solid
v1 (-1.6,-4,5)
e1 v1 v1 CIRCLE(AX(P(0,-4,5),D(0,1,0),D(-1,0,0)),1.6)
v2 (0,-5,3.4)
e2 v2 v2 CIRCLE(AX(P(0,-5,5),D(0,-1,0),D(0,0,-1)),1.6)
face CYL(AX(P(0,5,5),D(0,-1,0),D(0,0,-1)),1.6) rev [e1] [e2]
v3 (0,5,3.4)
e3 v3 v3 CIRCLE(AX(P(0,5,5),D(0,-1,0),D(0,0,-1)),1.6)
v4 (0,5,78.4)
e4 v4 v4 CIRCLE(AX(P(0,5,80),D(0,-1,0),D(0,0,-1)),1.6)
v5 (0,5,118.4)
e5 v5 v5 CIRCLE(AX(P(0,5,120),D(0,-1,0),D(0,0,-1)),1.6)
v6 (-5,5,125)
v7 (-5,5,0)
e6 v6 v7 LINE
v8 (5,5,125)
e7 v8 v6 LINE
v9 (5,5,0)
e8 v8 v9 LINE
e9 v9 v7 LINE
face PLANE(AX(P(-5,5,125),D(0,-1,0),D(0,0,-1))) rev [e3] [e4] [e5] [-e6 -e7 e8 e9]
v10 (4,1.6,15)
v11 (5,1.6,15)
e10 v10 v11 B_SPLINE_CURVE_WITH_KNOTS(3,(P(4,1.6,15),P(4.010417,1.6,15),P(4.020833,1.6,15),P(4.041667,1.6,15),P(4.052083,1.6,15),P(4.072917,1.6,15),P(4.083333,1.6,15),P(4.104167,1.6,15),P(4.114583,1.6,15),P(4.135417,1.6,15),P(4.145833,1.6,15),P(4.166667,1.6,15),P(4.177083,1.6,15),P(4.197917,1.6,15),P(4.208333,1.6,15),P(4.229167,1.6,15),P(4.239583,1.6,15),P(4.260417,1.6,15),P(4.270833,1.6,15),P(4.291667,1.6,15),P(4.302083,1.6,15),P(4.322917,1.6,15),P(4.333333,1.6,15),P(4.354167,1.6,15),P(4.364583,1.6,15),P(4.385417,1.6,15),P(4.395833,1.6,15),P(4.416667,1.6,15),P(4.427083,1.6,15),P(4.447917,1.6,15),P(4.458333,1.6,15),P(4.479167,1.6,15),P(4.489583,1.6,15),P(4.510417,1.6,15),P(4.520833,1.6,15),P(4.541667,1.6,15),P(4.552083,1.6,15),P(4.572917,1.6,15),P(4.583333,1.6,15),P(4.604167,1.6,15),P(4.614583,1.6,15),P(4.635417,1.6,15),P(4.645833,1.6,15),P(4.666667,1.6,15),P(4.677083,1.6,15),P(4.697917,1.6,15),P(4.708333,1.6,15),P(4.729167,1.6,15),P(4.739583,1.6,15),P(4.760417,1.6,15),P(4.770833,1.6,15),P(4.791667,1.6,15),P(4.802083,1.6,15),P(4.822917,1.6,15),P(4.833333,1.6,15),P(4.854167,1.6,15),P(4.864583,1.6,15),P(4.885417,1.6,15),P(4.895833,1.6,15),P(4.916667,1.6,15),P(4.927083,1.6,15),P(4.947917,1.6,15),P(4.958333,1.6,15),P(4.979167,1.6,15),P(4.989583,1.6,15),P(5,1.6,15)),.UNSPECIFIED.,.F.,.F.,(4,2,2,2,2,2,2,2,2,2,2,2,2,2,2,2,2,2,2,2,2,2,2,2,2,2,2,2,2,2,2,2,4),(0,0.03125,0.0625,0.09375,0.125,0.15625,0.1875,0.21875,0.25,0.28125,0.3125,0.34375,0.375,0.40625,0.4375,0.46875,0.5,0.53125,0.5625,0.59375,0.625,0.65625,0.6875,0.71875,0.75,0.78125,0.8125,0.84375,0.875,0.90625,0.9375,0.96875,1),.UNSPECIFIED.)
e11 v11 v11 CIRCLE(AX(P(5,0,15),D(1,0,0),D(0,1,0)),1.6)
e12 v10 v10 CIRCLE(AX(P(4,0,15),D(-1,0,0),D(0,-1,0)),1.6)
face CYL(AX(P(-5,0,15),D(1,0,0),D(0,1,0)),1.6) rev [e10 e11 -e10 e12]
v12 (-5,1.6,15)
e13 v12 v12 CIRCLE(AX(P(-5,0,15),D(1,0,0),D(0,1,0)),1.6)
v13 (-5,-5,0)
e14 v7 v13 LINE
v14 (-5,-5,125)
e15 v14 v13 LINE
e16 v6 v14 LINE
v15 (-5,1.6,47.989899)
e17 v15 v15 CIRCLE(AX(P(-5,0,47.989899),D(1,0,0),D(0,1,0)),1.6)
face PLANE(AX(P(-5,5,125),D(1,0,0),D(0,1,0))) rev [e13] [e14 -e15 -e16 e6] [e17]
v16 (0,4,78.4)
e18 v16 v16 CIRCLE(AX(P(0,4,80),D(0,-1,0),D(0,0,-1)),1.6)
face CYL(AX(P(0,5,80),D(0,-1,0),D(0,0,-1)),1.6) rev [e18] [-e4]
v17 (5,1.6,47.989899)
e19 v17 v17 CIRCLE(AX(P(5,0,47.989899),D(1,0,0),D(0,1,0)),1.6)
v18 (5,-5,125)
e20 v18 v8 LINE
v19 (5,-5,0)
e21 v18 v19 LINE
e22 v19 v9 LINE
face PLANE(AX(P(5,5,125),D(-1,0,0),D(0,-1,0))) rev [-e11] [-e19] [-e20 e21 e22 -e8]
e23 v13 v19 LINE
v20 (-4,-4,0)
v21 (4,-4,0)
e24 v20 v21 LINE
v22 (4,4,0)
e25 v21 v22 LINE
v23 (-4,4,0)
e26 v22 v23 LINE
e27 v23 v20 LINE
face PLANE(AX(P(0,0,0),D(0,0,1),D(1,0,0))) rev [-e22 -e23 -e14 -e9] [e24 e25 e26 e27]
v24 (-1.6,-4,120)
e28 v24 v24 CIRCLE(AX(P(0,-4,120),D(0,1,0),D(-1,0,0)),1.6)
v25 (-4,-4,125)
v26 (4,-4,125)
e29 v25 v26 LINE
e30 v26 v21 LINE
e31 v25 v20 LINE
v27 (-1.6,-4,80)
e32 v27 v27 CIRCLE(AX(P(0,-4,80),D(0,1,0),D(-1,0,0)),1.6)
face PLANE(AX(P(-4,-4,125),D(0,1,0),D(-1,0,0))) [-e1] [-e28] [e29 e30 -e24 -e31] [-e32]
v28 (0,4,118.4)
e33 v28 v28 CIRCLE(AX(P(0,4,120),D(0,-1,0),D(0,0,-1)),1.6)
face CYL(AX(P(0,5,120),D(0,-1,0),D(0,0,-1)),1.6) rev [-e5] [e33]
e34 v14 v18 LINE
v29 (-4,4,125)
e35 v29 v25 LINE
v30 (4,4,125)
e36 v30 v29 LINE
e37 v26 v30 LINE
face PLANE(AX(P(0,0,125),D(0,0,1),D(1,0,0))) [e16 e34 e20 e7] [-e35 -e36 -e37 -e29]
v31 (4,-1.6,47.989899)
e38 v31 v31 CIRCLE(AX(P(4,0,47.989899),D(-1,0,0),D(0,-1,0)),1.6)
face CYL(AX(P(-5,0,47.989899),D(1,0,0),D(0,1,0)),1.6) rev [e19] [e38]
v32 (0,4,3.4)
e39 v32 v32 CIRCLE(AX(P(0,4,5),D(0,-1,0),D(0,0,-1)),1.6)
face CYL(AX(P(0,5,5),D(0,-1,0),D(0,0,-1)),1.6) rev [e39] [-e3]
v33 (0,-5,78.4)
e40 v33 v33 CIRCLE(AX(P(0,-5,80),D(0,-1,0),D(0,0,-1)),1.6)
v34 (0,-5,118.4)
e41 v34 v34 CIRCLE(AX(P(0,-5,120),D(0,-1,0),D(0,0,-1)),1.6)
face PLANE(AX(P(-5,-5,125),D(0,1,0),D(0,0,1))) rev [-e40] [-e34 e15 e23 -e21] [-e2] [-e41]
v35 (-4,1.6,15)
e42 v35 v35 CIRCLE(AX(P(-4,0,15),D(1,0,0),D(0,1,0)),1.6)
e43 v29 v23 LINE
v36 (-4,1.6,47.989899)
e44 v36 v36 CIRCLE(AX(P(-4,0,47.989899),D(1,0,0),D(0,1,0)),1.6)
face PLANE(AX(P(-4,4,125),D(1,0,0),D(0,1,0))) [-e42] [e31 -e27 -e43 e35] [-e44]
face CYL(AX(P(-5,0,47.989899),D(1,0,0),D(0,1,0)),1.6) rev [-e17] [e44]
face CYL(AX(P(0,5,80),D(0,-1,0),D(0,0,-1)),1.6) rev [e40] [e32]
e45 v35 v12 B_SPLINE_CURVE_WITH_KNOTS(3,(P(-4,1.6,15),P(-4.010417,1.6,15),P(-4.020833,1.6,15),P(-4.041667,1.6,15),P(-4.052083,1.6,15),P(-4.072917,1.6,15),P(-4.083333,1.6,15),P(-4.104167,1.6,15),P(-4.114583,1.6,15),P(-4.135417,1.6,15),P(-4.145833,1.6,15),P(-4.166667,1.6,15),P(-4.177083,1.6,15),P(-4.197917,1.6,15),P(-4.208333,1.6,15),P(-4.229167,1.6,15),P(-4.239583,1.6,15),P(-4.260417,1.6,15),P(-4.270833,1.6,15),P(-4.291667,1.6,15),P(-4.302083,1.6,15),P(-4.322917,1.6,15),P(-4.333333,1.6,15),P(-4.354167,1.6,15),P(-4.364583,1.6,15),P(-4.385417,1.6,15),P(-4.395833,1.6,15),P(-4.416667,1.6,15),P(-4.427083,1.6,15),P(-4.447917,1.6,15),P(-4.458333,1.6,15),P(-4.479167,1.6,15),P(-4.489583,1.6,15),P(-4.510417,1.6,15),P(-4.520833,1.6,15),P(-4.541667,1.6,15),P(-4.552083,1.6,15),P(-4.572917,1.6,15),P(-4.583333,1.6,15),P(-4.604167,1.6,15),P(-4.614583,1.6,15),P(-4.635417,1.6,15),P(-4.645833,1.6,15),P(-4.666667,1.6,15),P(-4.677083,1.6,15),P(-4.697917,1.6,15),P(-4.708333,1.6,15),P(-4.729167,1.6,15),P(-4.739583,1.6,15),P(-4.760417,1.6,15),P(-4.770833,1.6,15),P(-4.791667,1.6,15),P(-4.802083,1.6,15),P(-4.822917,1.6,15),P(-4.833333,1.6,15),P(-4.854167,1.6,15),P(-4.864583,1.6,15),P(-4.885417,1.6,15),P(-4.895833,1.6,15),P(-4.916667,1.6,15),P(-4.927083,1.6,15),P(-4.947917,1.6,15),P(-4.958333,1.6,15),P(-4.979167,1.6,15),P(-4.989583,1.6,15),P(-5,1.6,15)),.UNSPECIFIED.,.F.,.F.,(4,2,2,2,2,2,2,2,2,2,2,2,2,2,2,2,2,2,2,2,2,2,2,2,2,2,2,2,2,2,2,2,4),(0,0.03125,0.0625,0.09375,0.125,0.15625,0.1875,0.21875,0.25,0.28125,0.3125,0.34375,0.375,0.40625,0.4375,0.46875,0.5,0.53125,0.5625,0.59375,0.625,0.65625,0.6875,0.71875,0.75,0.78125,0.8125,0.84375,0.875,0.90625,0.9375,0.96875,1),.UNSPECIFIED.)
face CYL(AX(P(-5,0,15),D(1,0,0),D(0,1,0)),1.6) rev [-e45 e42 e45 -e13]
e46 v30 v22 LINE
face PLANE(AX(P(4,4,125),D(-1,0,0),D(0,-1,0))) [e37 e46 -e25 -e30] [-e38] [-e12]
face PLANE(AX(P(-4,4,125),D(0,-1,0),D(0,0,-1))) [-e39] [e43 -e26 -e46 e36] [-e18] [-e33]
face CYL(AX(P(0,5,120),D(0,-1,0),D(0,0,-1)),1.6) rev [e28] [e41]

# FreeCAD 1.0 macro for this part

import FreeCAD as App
import Part
import Sketcher

V = App.Vector

doc = App.newDocument("Part")
body = doc.addObject("PartDesign::Body", "Body")

sketch1 = body.newObject("Sketcher::SketchObject", "Sketch")
sketch1.AttachmentSupport = (doc.getObject("XY_Plane"), [""])
sketch1.MapMode = "FlatFace"
sketch1.addGeometry([
    Part.LineSegment(V(-5, 5, 0), V(-5, -5, 0)),
    Part.LineSegment(V(-5, -5, 0), V(5, -5, 0)),
    Part.LineSegment(V(5, -5, 0), V(5, 5, 0)),
    Part.LineSegment(V(5, 5, 0), V(-5, 5, 0)),
    Part.LineSegment(V(4, -4, 0), V(-4, -4, 0)),
    Part.LineSegment(V(-4, -4, 0), V(-4, 4, 0)),
    Part.LineSegment(V(-4, 4, 0), V(4, 4, 0)),
    Part.LineSegment(V(4, 4, 0), V(4, -4, 0)),
], False)
sketch1.addConstraint([
    Sketcher.Constraint("Coincident", 0, 2, 1, 1),
    Sketcher.Constraint("Coincident", 1, 2, 2, 1),
    Sketcher.Constraint("Coincident", 2, 2, 3, 1),
    Sketcher.Constraint("Coincident", 3, 2, 0, 1),
    Sketcher.Constraint("Coincident", 4, 2, 5, 1),
    Sketcher.Constraint("Coincident", 5, 2, 6, 1),
    Sketcher.Constraint("Coincident", 6, 2, 7, 1),
    Sketcher.Constraint("Coincident", 7, 2, 4, 1),
    Sketcher.Constraint("Vertical", 0),
    Sketcher.Constraint("Horizontal", 1),
    Sketcher.Constraint("Vertical", 2),
    Sketcher.Constraint("Horizontal", 3),
    Sketcher.Constraint("Horizontal", 4),
    Sketcher.Constraint("Vertical", 5),
    Sketcher.Constraint("Horizontal", 6),
    Sketcher.Constraint("Vertical", 7),
    Sketcher.Constraint("Symmetric", 0, 2, 2, 2, -1, 1),
    Sketcher.Constraint("Symmetric", 4, 2, 6, 2, -1, 1),
    Sketcher.Constraint("Equal", 3, 0),
    Sketcher.Constraint("Equal", 6, 5),
    Sketcher.Constraint("DistanceX", 1, 1, 1, 2, 10.0),
    Sketcher.Constraint("DistanceX", 4, 2, 4, 1, 8.0),
])
pad1 = body.newObject("PartDesign::Pad", "Pad")
pad1.Profile = sketch1
pad1.Length = 125

sketch2 = body.newObject("Sketcher::SketchObject", "Sketch001")
sketch2.AttachmentSupport = (doc.getObject("XZ_Plane"), [""])
sketch2.MapMode = "FlatFace"
sketch2.AttachmentOffset = App.Placement(V(0, 0, 5), App.Rotation())
sketch2.addGeometry([
    Part.Circle(V(0, 5, 0), V(0, 0, 1), 1.6),
    Part.Circle(V(0, 80, 0), V(0, 0, 1), 1.6),
    Part.Circle(V(0, 120, 0), V(0, 0, 1), 1.6),
], False)
sketch2.addConstraint([
    Sketcher.Constraint("Equal", 0, 1),
    Sketcher.Constraint("Equal", 1, 2),
    Sketcher.Constraint("PointOnObject", 0, 3, -2),
    Sketcher.Constraint("PointOnObject", 1, 3, -2),
    Sketcher.Constraint("PointOnObject", 2, 3, -2),
    Sketcher.Constraint("Diameter", 0, 3.2),
    Sketcher.Constraint("DistanceY", -1, 1, 0, 3, 5.0),
    Sketcher.Constraint("DistanceY", -1, 1, 1, 3, 80.0),
    Sketcher.Constraint("DistanceY", -1, 1, 2, 3, 120.0),
])
pocket1 = body.newObject("PartDesign::Pocket", "Pocket")
pocket1.Profile = sketch2
pocket1.Type = "ThroughAll"

sketch3 = body.newObject("Sketcher::SketchObject", "Sketch002")
sketch3.AttachmentSupport = (doc.getObject("YZ_Plane"), [""])
sketch3.MapMode = "FlatFace"
sketch3.AttachmentOffset = App.Placement(V(0, 0, 5), App.Rotation())
sketch3.addGeometry(Part.Circle(V(0, 15, 0), V(0, 0, 1), 1.6), False)
sketch3.addConstraint([
    Sketcher.Constraint("PointOnObject", 0, 3, -2),
    Sketcher.Constraint("Diameter", 0, 3.2),
    Sketcher.Constraint("DistanceY", -1, 1, 0, 3, 15.0),
])
pocket2 = body.newObject("PartDesign::Pocket", "Pocket001")
pocket2.Profile = sketch3
pocket2.Type = "ThroughAll"

sketch4 = body.newObject("Sketcher::SketchObject", "Sketch003")
sketch4.AttachmentSupport = (doc.getObject("YZ_Plane"), [""])
sketch4.MapMode = "FlatFace"
sketch4.AttachmentOffset = App.Placement(V(0, 0, 5), App.Rotation())
sketch4.addGeometry(Part.Circle(V(0, 48, 0), V(0, 0, 1), 1.6), False)
sketch4.addConstraint([
    Sketcher.Constraint("PointOnObject", 0, 3, -2),
    Sketcher.Constraint("Diameter", 0, 3.2),
    Sketcher.Constraint("DistanceY", -1, 1, 0, 3, 47.989899),
])
pocket3 = body.newObject("PartDesign::Pocket", "Pocket002")
pocket3.Profile = sketch4
pocket3.Type = "ThroughAll"

doc.recompute()
